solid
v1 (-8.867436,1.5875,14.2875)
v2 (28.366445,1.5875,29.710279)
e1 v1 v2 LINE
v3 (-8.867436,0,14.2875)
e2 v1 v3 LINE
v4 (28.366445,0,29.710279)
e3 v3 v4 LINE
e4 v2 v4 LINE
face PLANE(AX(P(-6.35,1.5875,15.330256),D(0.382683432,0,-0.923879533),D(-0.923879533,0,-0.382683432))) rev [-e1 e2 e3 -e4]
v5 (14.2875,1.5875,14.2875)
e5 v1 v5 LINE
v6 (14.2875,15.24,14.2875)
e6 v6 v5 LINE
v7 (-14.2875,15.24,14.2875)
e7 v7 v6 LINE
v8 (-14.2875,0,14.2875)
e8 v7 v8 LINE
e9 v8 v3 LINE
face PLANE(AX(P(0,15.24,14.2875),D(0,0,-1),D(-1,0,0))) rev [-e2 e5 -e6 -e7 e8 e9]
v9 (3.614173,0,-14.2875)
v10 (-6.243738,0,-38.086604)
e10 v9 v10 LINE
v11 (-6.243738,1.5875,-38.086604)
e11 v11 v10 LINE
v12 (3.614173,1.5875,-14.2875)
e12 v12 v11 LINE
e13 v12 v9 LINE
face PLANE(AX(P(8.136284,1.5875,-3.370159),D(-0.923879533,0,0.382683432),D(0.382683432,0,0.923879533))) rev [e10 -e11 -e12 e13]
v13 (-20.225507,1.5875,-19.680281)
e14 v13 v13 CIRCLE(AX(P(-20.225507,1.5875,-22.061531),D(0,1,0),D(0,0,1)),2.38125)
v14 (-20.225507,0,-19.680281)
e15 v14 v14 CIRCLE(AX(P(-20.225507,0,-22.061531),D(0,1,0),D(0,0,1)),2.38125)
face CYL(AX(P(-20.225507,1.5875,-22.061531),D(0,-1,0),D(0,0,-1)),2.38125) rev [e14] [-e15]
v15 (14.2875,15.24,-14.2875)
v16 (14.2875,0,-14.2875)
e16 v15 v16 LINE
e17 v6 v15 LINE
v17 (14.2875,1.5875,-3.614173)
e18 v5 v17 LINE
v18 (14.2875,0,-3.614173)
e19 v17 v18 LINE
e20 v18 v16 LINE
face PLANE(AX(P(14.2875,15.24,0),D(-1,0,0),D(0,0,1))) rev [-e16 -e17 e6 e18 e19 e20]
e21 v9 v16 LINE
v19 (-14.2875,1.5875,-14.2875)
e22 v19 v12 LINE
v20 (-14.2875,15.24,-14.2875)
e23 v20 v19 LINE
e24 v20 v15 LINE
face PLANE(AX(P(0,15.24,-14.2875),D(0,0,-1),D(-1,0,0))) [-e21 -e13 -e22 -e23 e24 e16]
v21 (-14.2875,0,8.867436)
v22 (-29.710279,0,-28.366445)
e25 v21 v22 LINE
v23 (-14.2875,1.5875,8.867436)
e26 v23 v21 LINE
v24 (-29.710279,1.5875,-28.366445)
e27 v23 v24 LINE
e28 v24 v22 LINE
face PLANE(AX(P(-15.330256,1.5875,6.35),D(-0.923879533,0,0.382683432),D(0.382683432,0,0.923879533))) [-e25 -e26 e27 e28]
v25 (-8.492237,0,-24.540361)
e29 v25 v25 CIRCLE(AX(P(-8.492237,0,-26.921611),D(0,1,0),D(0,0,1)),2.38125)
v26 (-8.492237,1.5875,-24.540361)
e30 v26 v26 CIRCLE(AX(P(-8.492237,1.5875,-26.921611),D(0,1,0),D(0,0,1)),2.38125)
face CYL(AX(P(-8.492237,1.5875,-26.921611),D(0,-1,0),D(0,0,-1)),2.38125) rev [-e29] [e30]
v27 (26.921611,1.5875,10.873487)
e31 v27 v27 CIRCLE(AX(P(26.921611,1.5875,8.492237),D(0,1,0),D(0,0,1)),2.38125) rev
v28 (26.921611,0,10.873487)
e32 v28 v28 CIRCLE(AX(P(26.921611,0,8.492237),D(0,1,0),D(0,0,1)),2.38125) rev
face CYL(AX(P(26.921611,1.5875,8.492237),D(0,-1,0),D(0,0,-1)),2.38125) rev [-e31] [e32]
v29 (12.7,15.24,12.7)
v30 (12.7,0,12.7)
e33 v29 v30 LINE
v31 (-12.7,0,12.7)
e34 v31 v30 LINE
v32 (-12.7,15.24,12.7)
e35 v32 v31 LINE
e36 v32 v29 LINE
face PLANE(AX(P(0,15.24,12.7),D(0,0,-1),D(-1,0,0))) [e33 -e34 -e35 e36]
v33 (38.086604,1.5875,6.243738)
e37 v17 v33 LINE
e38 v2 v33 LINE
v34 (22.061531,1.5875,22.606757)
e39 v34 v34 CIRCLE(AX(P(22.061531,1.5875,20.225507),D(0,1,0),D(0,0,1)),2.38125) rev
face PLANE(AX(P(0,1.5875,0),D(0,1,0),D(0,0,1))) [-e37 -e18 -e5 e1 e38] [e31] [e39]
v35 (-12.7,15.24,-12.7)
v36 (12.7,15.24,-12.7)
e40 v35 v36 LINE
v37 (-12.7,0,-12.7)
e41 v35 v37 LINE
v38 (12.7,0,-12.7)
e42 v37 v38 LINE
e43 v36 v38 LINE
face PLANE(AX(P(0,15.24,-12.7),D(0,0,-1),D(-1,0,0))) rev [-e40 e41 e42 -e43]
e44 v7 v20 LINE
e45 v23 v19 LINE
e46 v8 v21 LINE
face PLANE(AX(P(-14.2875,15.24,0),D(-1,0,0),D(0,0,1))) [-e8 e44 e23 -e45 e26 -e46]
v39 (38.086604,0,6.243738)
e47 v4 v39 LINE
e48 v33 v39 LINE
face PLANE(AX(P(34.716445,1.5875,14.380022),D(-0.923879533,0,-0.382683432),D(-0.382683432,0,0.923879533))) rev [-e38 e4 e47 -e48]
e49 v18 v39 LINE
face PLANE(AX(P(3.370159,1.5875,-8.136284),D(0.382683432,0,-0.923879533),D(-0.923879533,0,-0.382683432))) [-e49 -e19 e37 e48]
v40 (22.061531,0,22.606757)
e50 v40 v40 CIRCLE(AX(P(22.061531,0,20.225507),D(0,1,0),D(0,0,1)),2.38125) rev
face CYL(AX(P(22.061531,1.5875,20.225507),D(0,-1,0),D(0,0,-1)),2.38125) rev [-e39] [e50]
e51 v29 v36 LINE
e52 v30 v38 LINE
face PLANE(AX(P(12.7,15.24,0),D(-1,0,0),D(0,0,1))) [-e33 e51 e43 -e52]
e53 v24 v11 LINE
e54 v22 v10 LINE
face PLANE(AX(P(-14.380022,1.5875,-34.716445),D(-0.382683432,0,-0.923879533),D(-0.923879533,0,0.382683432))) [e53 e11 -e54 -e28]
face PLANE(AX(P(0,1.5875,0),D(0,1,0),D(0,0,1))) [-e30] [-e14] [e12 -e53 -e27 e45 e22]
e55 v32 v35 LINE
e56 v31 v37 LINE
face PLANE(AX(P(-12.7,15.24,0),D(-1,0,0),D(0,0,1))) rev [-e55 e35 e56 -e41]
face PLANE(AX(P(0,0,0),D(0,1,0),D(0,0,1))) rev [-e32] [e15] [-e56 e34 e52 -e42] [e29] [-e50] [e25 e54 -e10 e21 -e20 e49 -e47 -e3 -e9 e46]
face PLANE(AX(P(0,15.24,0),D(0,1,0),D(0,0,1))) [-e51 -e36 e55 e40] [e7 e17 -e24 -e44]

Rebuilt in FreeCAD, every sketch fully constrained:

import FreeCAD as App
import Part
import Sketcher
from FreeCAD import Vector
Q = App.Units.Quantity


def add_polygon(sketch, points):
    """Adds a closed chain of lines whose ends are joined by coincident constraints."""
    first, n = sketch.GeometryCount, len(points)
    for a, b in zip(points, points[1:] + points[:1]):
        sketch.addGeometry(Part.LineSegment(App.Vector(*a, 0), App.Vector(*b, 0)), False)
    for i in range(n):
        sketch.addConstraint(Sketcher.Constraint("Coincident", first + i, 2, first + (i + 1) % n, 1))

doc = App.newDocument("Part")
body = doc.addObject("PartDesign::Body", "Body")

# Sketch on XZ plane
sketch1 = body.newObject("Sketcher::SketchObject", "Sketch")
sketch1.AttachmentSupport = (doc.getObject("XZ_Plane"), [""])
sketch1.MapMode = "FlatFace"
add_polygon(sketch1, [(14, 14), (14, -14), (-14, -14), (-14, 14)])  # lines 0-3
add_polygon(sketch1, [(-13, -13), (13, -13), (13, 13), (-13, 13)])  # lines 4-7
sketch1.addConstraint(Sketcher.Constraint("Vertical", 0))
sketch1.addConstraint(Sketcher.Constraint("Horizontal", 1))
sketch1.addConstraint(Sketcher.Constraint("Vertical", 2))
sketch1.addConstraint(Sketcher.Constraint("Horizontal", 3))
sketch1.addConstraint(Sketcher.Constraint("Horizontal", 4))
sketch1.addConstraint(Sketcher.Constraint("Vertical", 5))
sketch1.addConstraint(Sketcher.Constraint("Horizontal", 6))
sketch1.addConstraint(Sketcher.Constraint("Vertical", 7))
sketch1.addConstraint(Sketcher.Constraint("Symmetric", 0, 2, 2, 2, -1, 1))
sketch1.addConstraint(Sketcher.Constraint("Symmetric", 4, 2, 6, 2, -1, 1))
sketch1.addConstraint(Sketcher.Constraint("Equal", 3, 0))
sketch1.addConstraint(Sketcher.Constraint("Equal", 6, 5))
sketch1.addConstraint(Sketcher.Constraint("DistanceX", 4, 1, 4, 2, Q("1 in")))
sketch1.addConstraint(Sketcher.Constraint("DistanceX", 1, 2, 1, 1, Q("1.125 in")))
pad1 = body.newObject("PartDesign::Pad", "Pad")
pad1.Profile = sketch1
pad1.Length = Q("0.6 in")
pad1.Reversed = True

# Sketch on XZ plane
sketch2 = body.newObject("Sketcher::SketchObject", "Sketch001")
sketch2.AttachmentSupport = (doc.getObject("XZ_Plane"), [""])
sketch2.MapMode = "FlatFace"
add_polygon(sketch2, [(-14.3, -14.3), (3.6, -14.3), (-6.2, -38.1), (-29.7, -28.4), (-14.3, 8.9)])  # lines 0-4
sketch2.addGeometry(Part.Circle(Vector(-20.2, -22.1, 0), Vector(0, 0, 1), 2.4), False)  # 5
sketch2.addGeometry(Part.Circle(Vector(-8.5, -26.9, 0), Vector(0, 0, 1), 2.4), False)  # 6
add_polygon(sketch2, [(14.3, -3.6), (14.3, 14.3), (-8.9, 14.3), (28.4, 29.7), (38.1, 6.2)])  # lines 7-11
sketch2.addGeometry(Part.Circle(Vector(22.1, 20.2, 0), Vector(0, 0, 1), 2.4), False)  # 12
sketch2.addGeometry(Part.Circle(Vector(26.9, 8.5, 0), Vector(0, 0, 1), 2.4), False)  # 13
sketch2.addConstraint(Sketcher.Constraint("Horizontal", 0))
sketch2.addConstraint(Sketcher.Constraint("Vertical", 4))
sketch2.addConstraint(Sketcher.Constraint("Vertical", 7))
sketch2.addConstraint(Sketcher.Constraint("Horizontal", 8))
sketch2.addConstraint(Sketcher.Constraint("Equal", 5, 6))
sketch2.addConstraint(Sketcher.Constraint("Equal", 6, 12))
sketch2.addConstraint(Sketcher.Constraint("Equal", 12, 13))
sketch2.addConstraint(Sketcher.Constraint("Symmetric", 4, 2, 7, 2, -1, 1))
sketch2.addConstraint(Sketcher.Constraint("Perpendicular", 1, 2))
sketch2.addConstraint(Sketcher.Constraint("Perpendicular", 2, 3))
sketch2.addConstraint(Sketcher.Constraint("Perpendicular", 9, 10))
sketch2.addConstraint(Sketcher.Constraint("Perpendicular", 10, 11))
sketch2.addConstraint(Sketcher.Constraint("Equal", 8, 4))
sketch2.addConstraint(Sketcher.Constraint("Equal", 0, 7))
sketch2.addConstraint(Sketcher.Constraint("Equal", 3, 9))
sketch2.addConstraint(Sketcher.Constraint("Equal", 2, 10))
sketch2.addConstraint(Sketcher.Constraint("Distance", 2, Q("1 in")))
sketch2.addConstraint(Sketcher.Constraint("Diameter", 5, Q("0.1875 in")))
sketch2.addConstraint(Sketcher.Constraint("Angle", 1, Q("-112.5 deg")))
sketch2.addConstraint(Sketcher.Constraint("DistanceY", 0, 2, -1, 1, Q("0.5625 in")))
sketch2.addConstraint(Sketcher.Constraint("DistanceX", 3, 2, -1, 1, Q("0.5625 in")))
sketch2.addConstraint(Sketcher.Constraint("DistanceX", 6, 3, 1, 2, 2.248499))
sketch2.addConstraint(Sketcher.Constraint("DistanceY", 10, 2, 13, 3, 2.248499))
sketch2.addConstraint(Sketcher.Constraint("DistanceX", 0, 1, 0, 2, 17.901673))
sketch2.addConstraint(Sketcher.Constraint("DistanceY", 5, 3, -1, 1, 22.061531))
sketch2.addConstraint(Sketcher.Constraint("DistanceY", 6, 3, -1, 1, 26.921611))
sketch2.addConstraint(Sketcher.Constraint("DistanceX", -1, 1, 12, 3, 22.061531))
sketch2.addConstraint(Sketcher.Constraint("DistanceX", -1, 1, 13, 3, 26.921611))
sketch2.addConstraint(Sketcher.Constraint("DistanceX", 1, 2, -1, 1, 6.243738))
sketch2.addConstraint(Sketcher.Constraint("DistanceX", 5, 3, 6, 3, 11.73327))
sketch2.addConstraint(Sketcher.Constraint("DistanceY", 6, 3, 12, 3, 47.147118))
pad2 = body.newObject("PartDesign::Pad", "Pad001")
pad2.Profile = sketch2
pad2.Length = Q("0.0625 in")
pad2.Reversed = True

doc.recompute()
